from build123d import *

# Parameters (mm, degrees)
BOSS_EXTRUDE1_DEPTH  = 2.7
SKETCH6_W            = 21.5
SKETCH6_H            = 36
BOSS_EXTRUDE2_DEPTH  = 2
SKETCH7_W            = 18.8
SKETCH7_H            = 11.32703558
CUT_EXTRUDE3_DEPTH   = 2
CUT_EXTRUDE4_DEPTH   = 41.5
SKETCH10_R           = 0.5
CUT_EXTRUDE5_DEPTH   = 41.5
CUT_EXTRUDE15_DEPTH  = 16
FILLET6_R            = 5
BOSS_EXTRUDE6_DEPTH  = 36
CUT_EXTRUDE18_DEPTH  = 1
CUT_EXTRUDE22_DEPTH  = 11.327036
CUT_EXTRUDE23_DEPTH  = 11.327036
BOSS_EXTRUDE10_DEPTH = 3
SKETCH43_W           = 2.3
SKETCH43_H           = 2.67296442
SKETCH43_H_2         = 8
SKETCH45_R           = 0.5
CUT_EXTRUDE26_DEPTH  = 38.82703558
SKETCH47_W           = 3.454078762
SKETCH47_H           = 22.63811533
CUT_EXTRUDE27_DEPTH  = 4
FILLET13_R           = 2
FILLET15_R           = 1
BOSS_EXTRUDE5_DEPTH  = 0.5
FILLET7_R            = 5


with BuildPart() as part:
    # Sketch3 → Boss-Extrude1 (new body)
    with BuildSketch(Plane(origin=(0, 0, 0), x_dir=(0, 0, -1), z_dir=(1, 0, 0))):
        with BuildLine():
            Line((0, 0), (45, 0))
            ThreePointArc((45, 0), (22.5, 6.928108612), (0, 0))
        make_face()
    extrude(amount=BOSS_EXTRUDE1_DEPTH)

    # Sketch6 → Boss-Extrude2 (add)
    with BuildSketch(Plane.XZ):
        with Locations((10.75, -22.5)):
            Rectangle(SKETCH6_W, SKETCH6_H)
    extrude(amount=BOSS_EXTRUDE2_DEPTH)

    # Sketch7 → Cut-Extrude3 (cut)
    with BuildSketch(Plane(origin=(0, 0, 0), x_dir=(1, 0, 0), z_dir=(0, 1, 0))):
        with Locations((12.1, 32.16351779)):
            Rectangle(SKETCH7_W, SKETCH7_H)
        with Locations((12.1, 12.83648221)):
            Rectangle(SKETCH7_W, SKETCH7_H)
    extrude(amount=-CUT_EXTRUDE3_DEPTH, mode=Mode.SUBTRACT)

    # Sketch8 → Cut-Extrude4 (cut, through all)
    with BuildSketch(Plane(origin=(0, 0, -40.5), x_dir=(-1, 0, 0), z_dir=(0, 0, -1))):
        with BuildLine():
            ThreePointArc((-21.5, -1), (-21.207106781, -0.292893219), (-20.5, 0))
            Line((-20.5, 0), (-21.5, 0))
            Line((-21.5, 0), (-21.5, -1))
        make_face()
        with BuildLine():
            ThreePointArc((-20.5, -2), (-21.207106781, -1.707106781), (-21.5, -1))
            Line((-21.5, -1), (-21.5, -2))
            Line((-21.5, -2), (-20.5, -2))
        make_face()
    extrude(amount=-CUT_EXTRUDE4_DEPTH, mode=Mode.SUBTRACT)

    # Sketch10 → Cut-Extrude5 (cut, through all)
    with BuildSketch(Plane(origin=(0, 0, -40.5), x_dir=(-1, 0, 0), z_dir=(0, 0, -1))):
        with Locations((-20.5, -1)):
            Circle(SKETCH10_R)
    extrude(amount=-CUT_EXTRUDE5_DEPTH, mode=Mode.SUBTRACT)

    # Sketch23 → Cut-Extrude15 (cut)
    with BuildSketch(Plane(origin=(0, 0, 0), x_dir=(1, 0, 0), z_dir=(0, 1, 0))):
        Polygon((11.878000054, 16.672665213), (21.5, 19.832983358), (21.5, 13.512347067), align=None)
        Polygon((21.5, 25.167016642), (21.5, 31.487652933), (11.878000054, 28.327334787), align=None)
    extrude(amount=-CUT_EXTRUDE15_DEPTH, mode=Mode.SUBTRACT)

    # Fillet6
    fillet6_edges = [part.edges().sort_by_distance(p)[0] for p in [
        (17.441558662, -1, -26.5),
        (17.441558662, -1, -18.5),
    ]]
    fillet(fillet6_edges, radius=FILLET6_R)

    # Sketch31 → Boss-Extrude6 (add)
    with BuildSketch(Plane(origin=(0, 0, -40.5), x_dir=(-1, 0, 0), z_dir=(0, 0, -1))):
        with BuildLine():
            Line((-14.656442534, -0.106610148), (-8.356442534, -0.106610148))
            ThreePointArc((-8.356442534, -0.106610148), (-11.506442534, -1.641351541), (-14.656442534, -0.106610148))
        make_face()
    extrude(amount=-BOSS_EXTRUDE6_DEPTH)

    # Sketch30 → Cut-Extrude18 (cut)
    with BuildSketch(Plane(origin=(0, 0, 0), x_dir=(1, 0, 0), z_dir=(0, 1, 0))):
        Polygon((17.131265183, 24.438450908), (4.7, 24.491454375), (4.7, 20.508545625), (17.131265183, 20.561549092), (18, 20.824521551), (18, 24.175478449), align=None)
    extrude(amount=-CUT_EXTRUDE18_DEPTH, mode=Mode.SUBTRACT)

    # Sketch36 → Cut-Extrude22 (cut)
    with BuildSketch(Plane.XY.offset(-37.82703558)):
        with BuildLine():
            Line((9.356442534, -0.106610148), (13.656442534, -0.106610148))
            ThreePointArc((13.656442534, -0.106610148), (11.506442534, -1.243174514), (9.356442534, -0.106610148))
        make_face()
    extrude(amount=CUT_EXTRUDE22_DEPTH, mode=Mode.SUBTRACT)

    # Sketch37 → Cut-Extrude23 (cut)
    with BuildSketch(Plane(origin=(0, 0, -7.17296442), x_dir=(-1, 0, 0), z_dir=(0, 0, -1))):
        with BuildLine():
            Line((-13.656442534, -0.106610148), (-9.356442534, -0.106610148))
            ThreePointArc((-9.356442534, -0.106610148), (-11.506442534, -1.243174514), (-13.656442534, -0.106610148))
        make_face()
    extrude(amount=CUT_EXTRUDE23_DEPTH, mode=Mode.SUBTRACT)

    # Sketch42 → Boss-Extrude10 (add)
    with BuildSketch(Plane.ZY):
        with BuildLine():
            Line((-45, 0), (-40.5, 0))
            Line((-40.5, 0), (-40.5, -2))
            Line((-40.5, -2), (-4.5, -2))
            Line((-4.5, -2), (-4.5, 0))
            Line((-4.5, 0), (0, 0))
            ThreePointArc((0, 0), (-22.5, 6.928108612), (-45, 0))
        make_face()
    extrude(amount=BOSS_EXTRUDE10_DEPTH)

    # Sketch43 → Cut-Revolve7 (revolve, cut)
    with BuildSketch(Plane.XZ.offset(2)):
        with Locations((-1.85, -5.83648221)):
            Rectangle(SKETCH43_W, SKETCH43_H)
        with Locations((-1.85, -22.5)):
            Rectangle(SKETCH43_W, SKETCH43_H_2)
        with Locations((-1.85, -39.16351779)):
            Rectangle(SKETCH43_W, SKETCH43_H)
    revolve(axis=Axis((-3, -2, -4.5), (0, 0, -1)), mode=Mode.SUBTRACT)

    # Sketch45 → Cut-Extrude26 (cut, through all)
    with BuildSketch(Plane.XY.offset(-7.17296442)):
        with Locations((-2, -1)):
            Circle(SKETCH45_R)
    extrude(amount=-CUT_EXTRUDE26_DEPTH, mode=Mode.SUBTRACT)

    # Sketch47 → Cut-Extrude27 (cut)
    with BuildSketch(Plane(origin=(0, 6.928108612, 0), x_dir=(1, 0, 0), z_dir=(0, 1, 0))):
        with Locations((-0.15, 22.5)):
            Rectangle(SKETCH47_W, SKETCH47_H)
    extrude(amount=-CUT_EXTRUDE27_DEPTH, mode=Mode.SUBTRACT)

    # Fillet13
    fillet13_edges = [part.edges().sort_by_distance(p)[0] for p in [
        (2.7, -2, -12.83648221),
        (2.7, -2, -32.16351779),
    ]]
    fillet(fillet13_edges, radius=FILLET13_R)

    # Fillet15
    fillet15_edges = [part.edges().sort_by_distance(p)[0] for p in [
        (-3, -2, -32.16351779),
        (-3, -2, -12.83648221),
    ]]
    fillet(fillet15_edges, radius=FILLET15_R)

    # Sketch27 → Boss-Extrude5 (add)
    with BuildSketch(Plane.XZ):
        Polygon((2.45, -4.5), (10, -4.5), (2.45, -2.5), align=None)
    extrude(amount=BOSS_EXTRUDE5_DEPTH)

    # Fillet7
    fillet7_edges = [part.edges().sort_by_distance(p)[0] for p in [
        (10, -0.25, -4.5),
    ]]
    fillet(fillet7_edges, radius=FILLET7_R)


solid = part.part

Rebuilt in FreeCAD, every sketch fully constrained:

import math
import FreeCAD as App
import Part
import Sketcher
from FreeCAD import Vector


def edges_at(feature, points):
    """Names of the edges that pass closest to the given points."""
    edges = feature.Shape.Edges
    near = lambda p: min(range(len(edges)), key=lambda i: edges[i].distToShape(Part.Vertex(*p))[0])
    return sorted({f"Edge{near(p) + 1}" for p in points})


def add_polygon(sketch, points):
    """Adds a closed chain of lines whose ends are joined by coincident constraints."""
    first, n = sketch.GeometryCount, len(points)
    for a, b in zip(points, points[1:] + points[:1]):
        sketch.addGeometry(Part.LineSegment(App.Vector(*a, 0), App.Vector(*b, 0)), False)
    for i in range(n):
        sketch.addConstraint(Sketcher.Constraint("Coincident", first + i, 2, first + (i + 1) % n, 1))

doc = App.newDocument("Part")
params = doc.addObject("Spreadsheet::Sheet", "Params")
for row, (alias, value) in enumerate([
    ("sketch1_radius", "40 mm"),
    ("sketch1_height", "45 mm"),
    ("pad1_length", "2.7 mm"),
    ("sketch2_height", "36 mm"),
    ("sketch2_width", "21.5 mm"),
    ("pad2_length", "2 mm"),
    ("sketch3_width", "18.8 mm"),
    ("pocket1_length", "2 mm"),
    ("sketch4_radius", "1 mm"),
    ("sketch5_diameter", "1 mm"),
    ("pocket4_length", "16 mm"),
    ("fillet_radius", "5 mm"),
    ("sketch7_radius", "4 mm"),
    ("sketch7_width", "6.3 mm"),
    ("pad3_length", "36 mm"),
    ("pocket5_length", "1 mm"),
    ("sketch9_width", "4.3 mm"),
    ("pocket6_length", "11.327036 mm"),
    ("sketch10_width", "4.3 mm"),
    ("pocket7_length", "11.327036 mm"),
    ("sketch11_radius", "40 mm"),
    ("sketch11_width", "2 mm"),
    ("sketch11_height", "36 mm"),
    ("sketch11_height2", "4.5 mm"),
    ("pad4_length", "3 mm"),
    ("sketch12_height", "8 mm"),
    ("sketch12_height2", "36 mm"),
    ("sketch12_width", "2.3 mm"),
    ("groove_angle", "360 deg"),
    ("sketch13_diameter", "1 mm"),
    ("pocket9_length", "4 mm"),
    ("fillet2_radius", "2 mm"),
    ("fillet3_radius", "1 mm"),
    ("sketch15_height", "2 mm"),
    ("sketch15_width", "7.55 mm"),
    ("pad5_length", "0.5 mm"),
    ("fillet4_radius", "5 mm"),
], start=1):
    params.set(f"A{row}", alias)
    params.set(f"B{row}", "=" + value)
    params.setAlias(f"B{row}", alias)

body = doc.addObject("PartDesign::Body", "Body")

sketch1 = doc.addObject("Sketcher::SketchObject", "Sketch")
body.addObject(sketch1)
sketch1.AttachmentSupport = (doc.YZ_Plane, [""])
sketch1.MapMode = "FlatFace"
sketch1.addGeometry(Part.LineSegment(Vector(0, 0, 0), Vector(0, -45, 0)), False)
sketch1.addGeometry(Part.ArcOfCircle(Part.Circle(Vector(-33.071891, -22.5, 0), Vector(0, 0, 1), 40), math.radians(-34.228866), math.radians(34.228866)), False)
sketch1.addConstraint(Sketcher.Constraint("Coincident", 0, 1, 1, 2))
sketch1.addConstraint(Sketcher.Constraint("Coincident", 1, 1, 0, 2))
sketch1.addConstraint(Sketcher.Constraint("Vertical", 0))
sketch1.addConstraint(Sketcher.Constraint("Coincident", 0, 1, -1, 1))
sketch1.addConstraint(Sketcher.Constraint("Radius", 1, 40.0))
sketch1.addConstraint(Sketcher.Constraint("DistanceY", 0, 2, 0, 1, 45.0))
sketch1.setExpression("Constraints[4]", "Params.sketch1_radius")
sketch1.setExpression("Constraints[5]", "Params.sketch1_height")
pad1 = doc.addObject("PartDesign::Pad", "Pad")
body.addObject(pad1)
pad1.Profile = sketch1
pad1.setExpression("Length", "Params.pad1_length")

sketch2 = doc.addObject("Sketcher::SketchObject", "Sketch001")
body.addObject(sketch2)
sketch2.AttachmentSupport = (doc.XZ_Plane, [""])
sketch2.MapMode = "FlatFace"
add_polygon(sketch2, [(0, -4.5), (0, -40.5), (21.5, -40.5), (21.5, -4.5)])
sketch2.addConstraint(Sketcher.Constraint("Vertical", 0))
sketch2.addConstraint(Sketcher.Constraint("Horizontal", 1))
sketch2.addConstraint(Sketcher.Constraint("Vertical", 2))
sketch2.addConstraint(Sketcher.Constraint("Horizontal", 3))
sketch2.addConstraint(Sketcher.Constraint("PointOnObject", 0, 2, -2))
sketch2.addConstraint(Sketcher.Constraint("DistanceY", 0, 2, 0, 1, 36.0))
sketch2.addConstraint(Sketcher.Constraint("DistanceX", 1, 1, 1, 2, 21.5))
sketch2.addConstraint(Sketcher.Constraint("DistanceY", 0, 2, -1, 1, 40.5))
sketch2.setExpression("Constraints[9]", "Params.sketch2_height")
sketch2.setExpression("Constraints[10]", "Params.sketch2_width")
pad2 = doc.addObject("PartDesign::Pad", "Pad001")
body.addObject(pad2)
pad2.Profile = sketch2
pad2.setExpression("Length", "Params.pad2_length")

sketch3 = doc.addObject("Sketcher::SketchObject", "Sketch002")
body.addObject(sketch3)
sketch3.AttachmentSupport = (doc.XZ_Plane, [""])
sketch3.MapMode = "FlatFace"
add_polygon(sketch3, [(2.7, -37.827036), (2.7, -26.5), (21.5, -26.5), (21.5, -37.827036)])
add_polygon(sketch3, [(2.7, -18.5), (2.7, -7.172964), (21.5, -7.172964), (21.5, -18.5)])
sketch3.addConstraint(Sketcher.Constraint("Vertical", 0))
sketch3.addConstraint(Sketcher.Constraint("Horizontal", 1))
sketch3.addConstraint(Sketcher.Constraint("Vertical", 2))
sketch3.addConstraint(Sketcher.Constraint("Horizontal", 3))
sketch3.addConstraint(Sketcher.Constraint("Vertical", 4))
sketch3.addConstraint(Sketcher.Constraint("Horizontal", 5))
sketch3.addConstraint(Sketcher.Constraint("Vertical", 6))
sketch3.addConstraint(Sketcher.Constraint("Horizontal", 7))
sketch3.addConstraint(Sketcher.Constraint("Vertical", 3, 2, 4, 2))
sketch3.addConstraint(Sketcher.Constraint("Vertical", 2, 2, 5, 2))
sketch3.addConstraint(Sketcher.Constraint("Equal", 2, 4))
sketch3.addConstraint(Sketcher.Constraint("DistanceX", 1, 1, 1, 2, 18.8))
sketch3.addConstraint(Sketcher.Constraint("DistanceY", 1, 2, 6, 2, 8.0))
sketch3.addConstraint(Sketcher.Constraint("DistanceX", -1, 1, 0, 2, 2.7))
sketch3.addConstraint(Sketcher.Constraint("DistanceY", 0, 2, -1, 1, 26.5))
sketch3.addConstraint(Sketcher.Constraint("DistanceY", 0, 1, 0, 2, 11.327036))
sketch3.setExpression("Constraints[19]", "Params.sketch3_width")
pocket1 = doc.addObject("PartDesign::Pocket", "Pocket")
body.addObject(pocket1)
pocket1.Profile = sketch3
pocket1.setExpression("Length", "Params.pocket1_length")
pocket1.Reversed = True

sketch4 = doc.addObject("Sketcher::SketchObject", "Sketch003")
body.addObject(sketch4)
sketch4.AttachmentSupport = (doc.XY_Plane, [""])
sketch4.MapMode = "FlatFace"
sketch4.AttachmentOffset = App.Placement(Vector(0, 0, -40.5), App.Rotation())
sketch4.addGeometry(Part.ArcOfCircle(Part.Circle(Vector(20.5, -1, 0), Vector(0, 0, 1), 1), math.radians(0), math.radians(90)), False)
sketch4.addGeometry(Part.LineSegment(Vector(20.5, 0, 0), Vector(21.5, 0, 0)), False)
sketch4.addGeometry(Part.LineSegment(Vector(21.5, 0, 0), Vector(21.5, -1, 0)), False)
sketch4.addGeometry(Part.ArcOfCircle(Part.Circle(Vector(20.5, -1, 0), Vector(0, 0, 1), 1), math.radians(-90), math.radians(0)), False)
sketch4.addGeometry(Part.LineSegment(Vector(21.5, -1, 0), Vector(21.5, -2, 0)), False)
sketch4.addGeometry(Part.LineSegment(Vector(21.5, -2, 0), Vector(20.5, -2, 0)), False)
sketch4.addConstraint(Sketcher.Constraint("Tangent", 0, 2, 1, 1))
sketch4.addConstraint(Sketcher.Constraint("Coincident", 1, 2, 2, 1))
sketch4.addConstraint(Sketcher.Constraint("Tangent", 2, 2, 0, 1))
sketch4.addConstraint(Sketcher.Constraint("Tangent", 3, 2, 4, 1))
sketch4.addConstraint(Sketcher.Constraint("Coincident", 4, 2, 5, 1))
sketch4.addConstraint(Sketcher.Constraint("Tangent", 5, 2, 3, 1))
sketch4.addConstraint(Sketcher.Constraint("Horizontal", 1))
sketch4.addConstraint(Sketcher.Constraint("Vertical", 2))
sketch4.addConstraint(Sketcher.Constraint("Vertical", 4))
sketch4.addConstraint(Sketcher.Constraint("Horizontal", 5))
sketch4.addConstraint(Sketcher.Constraint("Coincident", 3, 3, 0, 3))
sketch4.addConstraint(Sketcher.Constraint("Equal", 0, 3))
sketch4.addConstraint(Sketcher.Constraint("PointOnObject", 0, 2, -1))
sketch4.addConstraint(Sketcher.Constraint("Radius", 0, 1.0))
sketch4.addConstraint(Sketcher.Constraint("DistanceX", -1, 1, 0, 3, 20.5))
sketch4.setExpression("Constraints[13]", "Params.sketch4_radius")
pocket2 = doc.addObject("PartDesign::Pocket", "Pocket001")
body.addObject(pocket2)
pocket2.Profile = sketch4
pocket2.Type = "ThroughAll"
pocket2.Reversed = True

sketch5 = doc.addObject("Sketcher::SketchObject", "Sketch004")
body.addObject(sketch5)
sketch5.AttachmentSupport = (doc.XY_Plane, [""])
sketch5.MapMode = "FlatFace"
sketch5.AttachmentOffset = App.Placement(Vector(0, 0, -40.5), App.Rotation())
sketch5.addGeometry(Part.Circle(Vector(20.5, -1, 0), Vector(0, 0, 1), 0.5), False)
sketch5.addConstraint(Sketcher.Constraint("Diameter", 0, 1.0))
sketch5.addConstraint(Sketcher.Constraint("DistanceY", 0, 3, -1, 1, 1.0))
sketch5.addConstraint(Sketcher.Constraint("DistanceX", -1, 1, 0, 3, 20.5))
sketch5.setExpression("Constraints[0]", "Params.sketch5_diameter")
pocket3 = doc.addObject("PartDesign::Pocket", "Pocket002")
body.addObject(pocket3)
pocket3.Profile = sketch5
pocket3.Type = "ThroughAll"
pocket3.Reversed = True

sketch6 = doc.addObject("Sketcher::SketchObject", "Sketch005")
body.addObject(sketch6)
sketch6.AttachmentSupport = (doc.XZ_Plane, [""])
sketch6.MapMode = "FlatFace"
add_polygon(sketch6, [(21.5, -19.832983), (11.878, -16.672665), (21.5, -13.512347)])
add_polygon(sketch6, [(21.5, -25.167017), (21.5, -31.487653), (11.878, -28.327335)])
sketch6.addConstraint(Sketcher.Constraint("Vertical", 2))
sketch6.addConstraint(Sketcher.Constraint("Vertical", 3))
sketch6.addConstraint(Sketcher.Constraint("Parallel", 0, 4))
sketch6.addConstraint(Sketcher.Constraint("Parallel", 1, 5))
sketch6.addConstraint(Sketcher.Constraint("Vertical", 2, 2, 3, 2))
sketch6.addConstraint(Sketcher.Constraint("Vertical", 0, 2, 4, 2))
sketch6.addConstraint(Sketcher.Constraint("Equal", 0, 1))
sketch6.addConstraint(Sketcher.Constraint("DistanceX", -1, 1, 1, 2, 21.5))
sketch6.addConstraint(Sketcher.Constraint("DistanceX", -1, 1, 0, 2, 11.878))
sketch6.addConstraint(Sketcher.Constraint("Distance", 0, 10.127709))
sketch6.addConstraint(Sketcher.Constraint("DistanceY", 3, 2, 2, 2, 11.65467))
sketch6.addConstraint(Sketcher.Constraint("DistanceY", 0, 2, -1, 1, 16.672665))
pocket4 = doc.addObject("PartDesign::Pocket", "Pocket003")
body.addObject(pocket4)
pocket4.Profile = sketch6
pocket4.setExpression("Length", "Params.pocket4_length")
pocket4.Reversed = True
doc.recompute()

fillet = doc.addObject("PartDesign::Fillet", "Fillet")
body.addObject(fillet)
fillet.Base = (pocket4, edges_at(pocket4, [(17.442, -1, -26.5), (17.442, -1, -18.5)]))
fillet.setExpression("Radius", "Params.fillet_radius")

sketch7 = doc.addObject("Sketcher::SketchObject", "Sketch006")
body.addObject(sketch7)
sketch7.AttachmentSupport = (doc.XY_Plane, [""])
sketch7.MapMode = "FlatFace"
sketch7.AttachmentOffset = App.Placement(Vector(0, 0, -40.5), App.Rotation())
sketch7.addGeometry(Part.LineSegment(Vector(8.356443, -0.10661, 0), Vector(14.656443, -0.10661, 0)), False)
sketch7.addGeometry(Part.ArcOfCircle(Part.Circle(Vector(11.506443, 2.358648, 0), Vector(0, 0, 1), 4), math.radians(-141.952493), math.radians(-38.047507)), False)
sketch7.addConstraint(Sketcher.Constraint("Coincident", 0, 1, 1, 1))
sketch7.addConstraint(Sketcher.Constraint("Coincident", 1, 2, 0, 2))
sketch7.addConstraint(Sketcher.Constraint("Horizontal", 0))
sketch7.addConstraint(Sketcher.Constraint("Radius", 1, 4.0))
sketch7.addConstraint(Sketcher.Constraint("DistanceX", 0, 1, 0, 2, 6.3))
sketch7.addConstraint(Sketcher.Constraint("DistanceY", -1, 1, 1, 3, 2.358648))
sketch7.addConstraint(Sketcher.Constraint("DistanceX", -1, 1, 1, 3, 11.506443))
sketch7.setExpression("Constraints[3]", "Params.sketch7_radius")
sketch7.setExpression("Constraints[4]", "Params.sketch7_width")
pad3 = doc.addObject("PartDesign::Pad", "Pad002")
body.addObject(pad3)
pad3.Profile = sketch7
pad3.setExpression("Length", "Params.pad3_length")

sketch8 = doc.addObject("Sketcher::SketchObject", "Sketch007")
body.addObject(sketch8)
sketch8.AttachmentSupport = (doc.XZ_Plane, [""])
sketch8.MapMode = "FlatFace"
add_polygon(sketch8, [(17.131265, -24.438451), (4.7, -24.491454), (4.7, -20.508546), (17.131265, -20.561549), (18, -20.824522), (18, -24.175478)])
sketch8.addConstraint(Sketcher.Constraint("Vertical", 1))
sketch8.addConstraint(Sketcher.Constraint("Vertical", 4))
sketch8.addConstraint(Sketcher.Constraint("Vertical", 2, 2, 5, 2))
sketch8.addConstraint(Sketcher.Constraint("Equal", 0, 2))
sketch8.addConstraint(Sketcher.Constraint("Equal", 3, 5))
sketch8.addConstraint(Sketcher.Constraint("DistanceX", -1, 1, 3, 2, 18.0))
sketch8.addConstraint(Sketcher.Constraint("DistanceX", -1, 1, 0, 2, 4.7))
sketch8.addConstraint(Sketcher.Constraint("DistanceY", 1, 1, 1, 2, 3.982909))
sketch8.addConstraint(Sketcher.Constraint("DistanceY", 5, 2, 2, 2, 3.876902))
sketch8.addConstraint(Sketcher.Constraint("Distance", 0, 12.431378))
sketch8.addConstraint(Sketcher.Constraint("DistanceY", 4, 2, 4, 1, 3.350957))
sketch8.addConstraint(Sketcher.Constraint("DistanceY", 2, 2, -1, 1, 20.561549))
pocket5 = doc.addObject("PartDesign::Pocket", "Pocket004")
body.addObject(pocket5)
pocket5.Profile = sketch8
pocket5.setExpression("Length", "Params.pocket5_length")
pocket5.Reversed = True

sketch9 = doc.addObject("Sketcher::SketchObject", "Sketch008")
body.addObject(sketch9)
sketch9.AttachmentSupport = (doc.XY_Plane, [""])
sketch9.MapMode = "FlatFace"
sketch9.AttachmentOffset = App.Placement(Vector(0, 0, -37.827036), App.Rotation())
sketch9.addGeometry(Part.LineSegment(Vector(13.656443, -0.10661, 0), Vector(9.356443, -0.10661, 0)), False)
sketch9.addGeometry(Part.ArcOfCircle(Part.Circle(Vector(11.506443, 1.358648, 0), Vector(0, 0, 1), 2.601823), math.radians(-145.724958), math.radians(-34.275042)), False)
sketch9.addConstraint(Sketcher.Constraint("Coincident", 0, 1, 1, 2))
sketch9.addConstraint(Sketcher.Constraint("Coincident", 1, 1, 0, 2))
sketch9.addConstraint(Sketcher.Constraint("Horizontal", 0))
sketch9.addConstraint(Sketcher.Constraint("DistanceX", 0, 2, 0, 1, 4.3))
sketch9.addConstraint(Sketcher.Constraint("Radius", 1, 2.601823))
sketch9.addConstraint(Sketcher.Constraint("DistanceY", -1, 1, 1, 3, 1.358648))
sketch9.addConstraint(Sketcher.Constraint("DistanceX", -1, 1, 1, 3, 11.506443))
sketch9.setExpression("Constraints[3]", "Params.sketch9_width")
pocket6 = doc.addObject("PartDesign::Pocket", "Pocket005")
body.addObject(pocket6)
pocket6.Profile = sketch9
pocket6.setExpression("Length", "Params.pocket6_length")
pocket6.Reversed = True

sketch10 = doc.addObject("Sketcher::SketchObject", "Sketch009")
body.addObject(sketch10)
sketch10.AttachmentSupport = (doc.XY_Plane, [""])
sketch10.MapMode = "FlatFace"
sketch10.AttachmentOffset = App.Placement(Vector(0, 0, -7.172964), App.Rotation())
sketch10.addGeometry(Part.LineSegment(Vector(9.356443, -0.10661, 0), Vector(13.656443, -0.10661, 0)), False)
sketch10.addGeometry(Part.ArcOfCircle(Part.Circle(Vector(11.506443, 1.358648, 0), Vector(0, 0, 1), 2.601823), math.radians(-145.724958), math.radians(-34.275042)), False)
sketch10.addConstraint(Sketcher.Constraint("Coincident", 0, 1, 1, 1))
sketch10.addConstraint(Sketcher.Constraint("Coincident", 1, 2, 0, 2))
sketch10.addConstraint(Sketcher.Constraint("Horizontal", 0))
sketch10.addConstraint(Sketcher.Constraint("DistanceX", 0, 1, 0, 2, 4.3))
sketch10.addConstraint(Sketcher.Constraint("Radius", 1, 2.601823))
sketch10.addConstraint(Sketcher.Constraint("DistanceY", -1, 1, 1, 3, 1.358648))
sketch10.addConstraint(Sketcher.Constraint("DistanceX", -1, 1, 1, 3, 11.506443))
sketch10.setExpression("Constraints[3]", "Params.sketch10_width")
pocket7 = doc.addObject("PartDesign::Pocket", "Pocket006")
body.addObject(pocket7)
pocket7.Profile = sketch10
pocket7.setExpression("Length", "Params.pocket7_length")

sketch11 = doc.addObject("Sketcher::SketchObject", "Sketch010")
body.addObject(sketch11)
sketch11.AttachmentSupport = (doc.YZ_Plane, [""])
sketch11.MapMode = "FlatFace"
sketch11.addGeometry(Part.LineSegment(Vector(0, -45, 0), Vector(0, -40.5, 0)), False)
sketch11.addGeometry(Part.LineSegment(Vector(0, -40.5, 0), Vector(-2, -40.5, 0)), False)
sketch11.addGeometry(Part.LineSegment(Vector(-2, -40.5, 0), Vector(-2, -4.5, 0)), False)
sketch11.addGeometry(Part.LineSegment(Vector(-2, -4.5, 0), Vector(0, -4.5, 0)), False)
sketch11.addGeometry(Part.LineSegment(Vector(0, -4.5, 0), Vector(0, 0, 0)), False)
sketch11.addGeometry(Part.ArcOfCircle(Part.Circle(Vector(-33.071891, -22.5, 0), Vector(0, 0, 1), 40), math.radians(-34.228866), math.radians(34.228866)), False)
sketch11.addConstraint(Sketcher.Constraint("Coincident", 0, 2, 1, 1))
sketch11.addConstraint(Sketcher.Constraint("Coincident", 1, 2, 2, 1))
sketch11.addConstraint(Sketcher.Constraint("Coincident", 2, 2, 3, 1))
sketch11.addConstraint(Sketcher.Constraint("Coincident", 3, 2, 4, 1))
sketch11.addConstraint(Sketcher.Constraint("Coincident", 4, 2, 5, 2))
sketch11.addConstraint(Sketcher.Constraint("Coincident", 5, 1, 0, 1))
sketch11.addConstraint(Sketcher.Constraint("Vertical", 0))
sketch11.addConstraint(Sketcher.Constraint("Horizontal", 1))
sketch11.addConstraint(Sketcher.Constraint("Vertical", 2))
sketch11.addConstraint(Sketcher.Constraint("Horizontal", 3))
sketch11.addConstraint(Sketcher.Constraint("Vertical", 4))
sketch11.addConstraint(Sketcher.Constraint("Coincident", 4, 2, -1, 1))
sketch11.addConstraint(Sketcher.Constraint("PointOnObject", 0, 2, -2))
sketch11.addConstraint(Sketcher.Constraint("Equal", 0, 4))
sketch11.addConstraint(Sketcher.Constraint("Radius", 5, 40.0))
sketch11.addConstraint(Sketcher.Constraint("DistanceX", 1, 2, 1, 1, 2.0))
sketch11.addConstraint(Sketcher.Constraint("DistanceY", 2, 1, 2, 2, 36.0))
sketch11.addConstraint(Sketcher.Constraint("DistanceY", 0, 1, 0, 2, 4.5))
sketch11.setExpression("Constraints[14]", "Params.sketch11_radius")
sketch11.setExpression("Constraints[15]", "Params.sketch11_width")
sketch11.setExpression("Constraints[16]", "Params.sketch11_height")
sketch11.setExpression("Constraints[17]", "Params.sketch11_height2")
pad4 = doc.addObject("PartDesign::Pad", "Pad003")
body.addObject(pad4)
pad4.Profile = sketch11
pad4.setExpression("Length", "Params.pad4_length")
pad4.Reversed = True

sketch12 = doc.addObject("Sketcher::SketchObject", "Sketch011")
body.addObject(sketch12)
sketch12.AttachmentSupport = (doc.XZ_Plane, [""])
sketch12.MapMode = "FlatFace"
sketch12.AttachmentOffset = App.Placement(Vector(0, 0, 2), App.Rotation())
add_polygon(sketch12, [(-3, -4.5), (-3, -7.172964), (-0.7, -7.172964), (-0.7, -4.5)])
add_polygon(sketch12, [(-3, -18.5), (-3, -26.5), (-0.7, -26.5), (-0.7, -18.5)])
add_polygon(sketch12, [(-3, -37.827036), (-3, -40.5), (-0.7, -40.5), (-0.7, -37.827036)])
sketch12.addGeometry(Part.LineSegment(Vector(-3, -4.5, 0), Vector(-3, -40.5, 0)), True)
sketch12.addConstraint(Sketcher.Constraint("Vertical", 0))
sketch12.addConstraint(Sketcher.Constraint("Horizontal", 1))
sketch12.addConstraint(Sketcher.Constraint("Vertical", 2))
sketch12.addConstraint(Sketcher.Constraint("Horizontal", 3))
sketch12.addConstraint(Sketcher.Constraint("Vertical", 4))
sketch12.addConstraint(Sketcher.Constraint("Horizontal", 5))
sketch12.addConstraint(Sketcher.Constraint("Vertical", 6))
sketch12.addConstraint(Sketcher.Constraint("Horizontal", 7))
sketch12.addConstraint(Sketcher.Constraint("Vertical", 8))
sketch12.addConstraint(Sketcher.Constraint("Horizontal", 9))
sketch12.addConstraint(Sketcher.Constraint("Vertical", 10))
sketch12.addConstraint(Sketcher.Constraint("Horizontal", 11))
sketch12.addConstraint(Sketcher.Constraint("Vertical", 12))
sketch12.addConstraint(Sketcher.Constraint("Coincident", 12, 1, 3, 2))
sketch12.addConstraint(Sketcher.Constraint("Coincident", 12, 2, 8, 2))
sketch12.addConstraint(Sketcher.Constraint("Vertical", 3, 2, 4, 2))
sketch12.addConstraint(Sketcher.Constraint("Vertical", 2, 2, 5, 2))
sketch12.addConstraint(Sketcher.Constraint("Vertical", 6, 2, 9, 2))
sketch12.addConstraint(Sketcher.Constraint("Equal", 2, 8))
sketch12.addConstraint(Sketcher.Constraint("DistanceY", 4, 2, 4, 1, 8.0))
sketch12.addConstraint(Sketcher.Constraint("DistanceY", 12, 2, 12, 1, 36.0))
sketch12.addConstraint(Sketcher.Constraint("DistanceX", 1, 1, 1, 2, 2.3))
sketch12.addConstraint(Sketcher.Constraint("DistanceX", 0, 2, -1, 1, 3.0))
sketch12.addConstraint(Sketcher.Constraint("DistanceY", 4, 2, 3, 2, 22.0))
sketch12.addConstraint(Sketcher.Constraint("DistanceY", 2, 2, -1, 1, 4.5))
sketch12.addConstraint(Sketcher.Constraint("DistanceY", 0, 2, 0, 1, 2.672964))
sketch12.setExpression("Constraints[31]", "Params.sketch12_height")
sketch12.setExpression("Constraints[32]", "Params.sketch12_height2")
sketch12.setExpression("Constraints[33]", "Params.sketch12_width")
groove = doc.addObject("PartDesign::Groove", "Groove")
body.addObject(groove)
groove.Profile = sketch12
groove.ReferenceAxis = (sketch12, ["Axis0"])
groove.setExpression("Angle", "Params.groove_angle")

sketch13 = doc.addObject("Sketcher::SketchObject", "Sketch012")
body.addObject(sketch13)
sketch13.AttachmentSupport = (doc.XY_Plane, [""])
sketch13.MapMode = "FlatFace"
sketch13.AttachmentOffset = App.Placement(Vector(0, 0, -7.172964), App.Rotation())
sketch13.addGeometry(Part.Circle(Vector(-2, -1, 0), Vector(0, 0, 1), 0.5), False)
sketch13.addConstraint(Sketcher.Constraint("Diameter", 0, 1.0))
sketch13.addConstraint(Sketcher.Constraint("DistanceX", 0, 3, -1, 1, 2.0))
sketch13.addConstraint(Sketcher.Constraint("DistanceY", 0, 3, -1, 1, 1.0))
sketch13.setExpression("Constraints[0]", "Params.sketch13_diameter")
pocket8 = doc.addObject("PartDesign::Pocket", "Pocket007")
body.addObject(pocket8)
pocket8.Profile = sketch13
pocket8.Type = "ThroughAll"

sketch14 = doc.addObject("Sketcher::SketchObject", "Sketch013")
body.addObject(sketch14)
sketch14.AttachmentSupport = (doc.XZ_Plane, [""])
sketch14.MapMode = "FlatFace"
sketch14.AttachmentOffset = App.Placement(Vector(0, 0, -6.928109), App.Rotation())
add_polygon(sketch14, [(-1.877039, -33.819058), (-1.877039, -11.180942), (1.577039, -11.180942), (1.577039, -33.819058)])
sketch14.addConstraint(Sketcher.Constraint("Vertical", 0))
sketch14.addConstraint(Sketcher.Constraint("Horizontal", 1))
sketch14.addConstraint(Sketcher.Constraint("Vertical", 2))
sketch14.addConstraint(Sketcher.Constraint("Horizontal", 3))
sketch14.addConstraint(Sketcher.Constraint("DistanceX", 1, 1, 1, 2, 3.454079))
sketch14.addConstraint(Sketcher.Constraint("DistanceY", 0, 1, 0, 2, 22.638115))
sketch14.addConstraint(Sketcher.Constraint("DistanceX", 0, 2, -1, 1, 1.877039))
sketch14.addConstraint(Sketcher.Constraint("DistanceY", 0, 2, -1, 1, 11.180942))
pocket9 = doc.addObject("PartDesign::Pocket", "Pocket008")
body.addObject(pocket9)
pocket9.Profile = sketch14
pocket9.setExpression("Length", "Params.pocket9_length")
pocket9.Reversed = True
doc.recompute()

fillet2 = doc.addObject("PartDesign::Fillet", "Fillet001")
body.addObject(fillet2)
fillet2.Base = (pocket9, edges_at(pocket9, [(2.7, -2, -12.836), (2.7, -2, -32.164)]))
fillet2.setExpression("Radius", "Params.fillet2_radius")
doc.recompute()

fillet3 = doc.addObject("PartDesign::Fillet", "Fillet002")
body.addObject(fillet3)
fillet3.Base = (fillet2, edges_at(fillet2, [(-3, -2, -32.164), (-3, -2, -12.836)]))
fillet3.setExpression("Radius", "Params.fillet3_radius")

sketch15 = doc.addObject("Sketcher::SketchObject", "Sketch014")
body.addObject(sketch15)
sketch15.AttachmentSupport = (doc.XZ_Plane, [""])
sketch15.MapMode = "FlatFace"
add_polygon(sketch15, [(2.45, -4.5), (10, -4.5), (2.45, -2.5)])
sketch15.addConstraint(Sketcher.Constraint("Horizontal", 0))
sketch15.addConstraint(Sketcher.Constraint("Vertical", 2))
sketch15.addConstraint(Sketcher.Constraint("DistanceY", 2, 2, 2, 1, 2.0))
sketch15.addConstraint(Sketcher.Constraint("DistanceX", -1, 1, 0, 2, 10.0))
sketch15.addConstraint(Sketcher.Constraint("DistanceX", 0, 1, 0, 2, 7.55))
sketch15.addConstraint(Sketcher.Constraint("DistanceY", 0, 2, -1, 1, 4.5))
sketch15.setExpression("Constraints[5]", "Params.sketch15_height")
sketch15.setExpression("Constraints[7]", "Params.sketch15_width")
pad5 = doc.addObject("PartDesign::Pad", "Pad004")
body.addObject(pad5)
pad5.Profile = sketch15
pad5.setExpression("Length", "Params.pad5_length")
doc.recompute()

fillet4 = doc.addObject("PartDesign::Fillet", "Fillet003")
body.addObject(fillet4)
fillet4.Base = (pad5, edges_at(pad5, [(10, -0.25, -4.5)]))
fillet4.setExpression("Radius", "Params.fillet4_radius")

doc.recompute()
